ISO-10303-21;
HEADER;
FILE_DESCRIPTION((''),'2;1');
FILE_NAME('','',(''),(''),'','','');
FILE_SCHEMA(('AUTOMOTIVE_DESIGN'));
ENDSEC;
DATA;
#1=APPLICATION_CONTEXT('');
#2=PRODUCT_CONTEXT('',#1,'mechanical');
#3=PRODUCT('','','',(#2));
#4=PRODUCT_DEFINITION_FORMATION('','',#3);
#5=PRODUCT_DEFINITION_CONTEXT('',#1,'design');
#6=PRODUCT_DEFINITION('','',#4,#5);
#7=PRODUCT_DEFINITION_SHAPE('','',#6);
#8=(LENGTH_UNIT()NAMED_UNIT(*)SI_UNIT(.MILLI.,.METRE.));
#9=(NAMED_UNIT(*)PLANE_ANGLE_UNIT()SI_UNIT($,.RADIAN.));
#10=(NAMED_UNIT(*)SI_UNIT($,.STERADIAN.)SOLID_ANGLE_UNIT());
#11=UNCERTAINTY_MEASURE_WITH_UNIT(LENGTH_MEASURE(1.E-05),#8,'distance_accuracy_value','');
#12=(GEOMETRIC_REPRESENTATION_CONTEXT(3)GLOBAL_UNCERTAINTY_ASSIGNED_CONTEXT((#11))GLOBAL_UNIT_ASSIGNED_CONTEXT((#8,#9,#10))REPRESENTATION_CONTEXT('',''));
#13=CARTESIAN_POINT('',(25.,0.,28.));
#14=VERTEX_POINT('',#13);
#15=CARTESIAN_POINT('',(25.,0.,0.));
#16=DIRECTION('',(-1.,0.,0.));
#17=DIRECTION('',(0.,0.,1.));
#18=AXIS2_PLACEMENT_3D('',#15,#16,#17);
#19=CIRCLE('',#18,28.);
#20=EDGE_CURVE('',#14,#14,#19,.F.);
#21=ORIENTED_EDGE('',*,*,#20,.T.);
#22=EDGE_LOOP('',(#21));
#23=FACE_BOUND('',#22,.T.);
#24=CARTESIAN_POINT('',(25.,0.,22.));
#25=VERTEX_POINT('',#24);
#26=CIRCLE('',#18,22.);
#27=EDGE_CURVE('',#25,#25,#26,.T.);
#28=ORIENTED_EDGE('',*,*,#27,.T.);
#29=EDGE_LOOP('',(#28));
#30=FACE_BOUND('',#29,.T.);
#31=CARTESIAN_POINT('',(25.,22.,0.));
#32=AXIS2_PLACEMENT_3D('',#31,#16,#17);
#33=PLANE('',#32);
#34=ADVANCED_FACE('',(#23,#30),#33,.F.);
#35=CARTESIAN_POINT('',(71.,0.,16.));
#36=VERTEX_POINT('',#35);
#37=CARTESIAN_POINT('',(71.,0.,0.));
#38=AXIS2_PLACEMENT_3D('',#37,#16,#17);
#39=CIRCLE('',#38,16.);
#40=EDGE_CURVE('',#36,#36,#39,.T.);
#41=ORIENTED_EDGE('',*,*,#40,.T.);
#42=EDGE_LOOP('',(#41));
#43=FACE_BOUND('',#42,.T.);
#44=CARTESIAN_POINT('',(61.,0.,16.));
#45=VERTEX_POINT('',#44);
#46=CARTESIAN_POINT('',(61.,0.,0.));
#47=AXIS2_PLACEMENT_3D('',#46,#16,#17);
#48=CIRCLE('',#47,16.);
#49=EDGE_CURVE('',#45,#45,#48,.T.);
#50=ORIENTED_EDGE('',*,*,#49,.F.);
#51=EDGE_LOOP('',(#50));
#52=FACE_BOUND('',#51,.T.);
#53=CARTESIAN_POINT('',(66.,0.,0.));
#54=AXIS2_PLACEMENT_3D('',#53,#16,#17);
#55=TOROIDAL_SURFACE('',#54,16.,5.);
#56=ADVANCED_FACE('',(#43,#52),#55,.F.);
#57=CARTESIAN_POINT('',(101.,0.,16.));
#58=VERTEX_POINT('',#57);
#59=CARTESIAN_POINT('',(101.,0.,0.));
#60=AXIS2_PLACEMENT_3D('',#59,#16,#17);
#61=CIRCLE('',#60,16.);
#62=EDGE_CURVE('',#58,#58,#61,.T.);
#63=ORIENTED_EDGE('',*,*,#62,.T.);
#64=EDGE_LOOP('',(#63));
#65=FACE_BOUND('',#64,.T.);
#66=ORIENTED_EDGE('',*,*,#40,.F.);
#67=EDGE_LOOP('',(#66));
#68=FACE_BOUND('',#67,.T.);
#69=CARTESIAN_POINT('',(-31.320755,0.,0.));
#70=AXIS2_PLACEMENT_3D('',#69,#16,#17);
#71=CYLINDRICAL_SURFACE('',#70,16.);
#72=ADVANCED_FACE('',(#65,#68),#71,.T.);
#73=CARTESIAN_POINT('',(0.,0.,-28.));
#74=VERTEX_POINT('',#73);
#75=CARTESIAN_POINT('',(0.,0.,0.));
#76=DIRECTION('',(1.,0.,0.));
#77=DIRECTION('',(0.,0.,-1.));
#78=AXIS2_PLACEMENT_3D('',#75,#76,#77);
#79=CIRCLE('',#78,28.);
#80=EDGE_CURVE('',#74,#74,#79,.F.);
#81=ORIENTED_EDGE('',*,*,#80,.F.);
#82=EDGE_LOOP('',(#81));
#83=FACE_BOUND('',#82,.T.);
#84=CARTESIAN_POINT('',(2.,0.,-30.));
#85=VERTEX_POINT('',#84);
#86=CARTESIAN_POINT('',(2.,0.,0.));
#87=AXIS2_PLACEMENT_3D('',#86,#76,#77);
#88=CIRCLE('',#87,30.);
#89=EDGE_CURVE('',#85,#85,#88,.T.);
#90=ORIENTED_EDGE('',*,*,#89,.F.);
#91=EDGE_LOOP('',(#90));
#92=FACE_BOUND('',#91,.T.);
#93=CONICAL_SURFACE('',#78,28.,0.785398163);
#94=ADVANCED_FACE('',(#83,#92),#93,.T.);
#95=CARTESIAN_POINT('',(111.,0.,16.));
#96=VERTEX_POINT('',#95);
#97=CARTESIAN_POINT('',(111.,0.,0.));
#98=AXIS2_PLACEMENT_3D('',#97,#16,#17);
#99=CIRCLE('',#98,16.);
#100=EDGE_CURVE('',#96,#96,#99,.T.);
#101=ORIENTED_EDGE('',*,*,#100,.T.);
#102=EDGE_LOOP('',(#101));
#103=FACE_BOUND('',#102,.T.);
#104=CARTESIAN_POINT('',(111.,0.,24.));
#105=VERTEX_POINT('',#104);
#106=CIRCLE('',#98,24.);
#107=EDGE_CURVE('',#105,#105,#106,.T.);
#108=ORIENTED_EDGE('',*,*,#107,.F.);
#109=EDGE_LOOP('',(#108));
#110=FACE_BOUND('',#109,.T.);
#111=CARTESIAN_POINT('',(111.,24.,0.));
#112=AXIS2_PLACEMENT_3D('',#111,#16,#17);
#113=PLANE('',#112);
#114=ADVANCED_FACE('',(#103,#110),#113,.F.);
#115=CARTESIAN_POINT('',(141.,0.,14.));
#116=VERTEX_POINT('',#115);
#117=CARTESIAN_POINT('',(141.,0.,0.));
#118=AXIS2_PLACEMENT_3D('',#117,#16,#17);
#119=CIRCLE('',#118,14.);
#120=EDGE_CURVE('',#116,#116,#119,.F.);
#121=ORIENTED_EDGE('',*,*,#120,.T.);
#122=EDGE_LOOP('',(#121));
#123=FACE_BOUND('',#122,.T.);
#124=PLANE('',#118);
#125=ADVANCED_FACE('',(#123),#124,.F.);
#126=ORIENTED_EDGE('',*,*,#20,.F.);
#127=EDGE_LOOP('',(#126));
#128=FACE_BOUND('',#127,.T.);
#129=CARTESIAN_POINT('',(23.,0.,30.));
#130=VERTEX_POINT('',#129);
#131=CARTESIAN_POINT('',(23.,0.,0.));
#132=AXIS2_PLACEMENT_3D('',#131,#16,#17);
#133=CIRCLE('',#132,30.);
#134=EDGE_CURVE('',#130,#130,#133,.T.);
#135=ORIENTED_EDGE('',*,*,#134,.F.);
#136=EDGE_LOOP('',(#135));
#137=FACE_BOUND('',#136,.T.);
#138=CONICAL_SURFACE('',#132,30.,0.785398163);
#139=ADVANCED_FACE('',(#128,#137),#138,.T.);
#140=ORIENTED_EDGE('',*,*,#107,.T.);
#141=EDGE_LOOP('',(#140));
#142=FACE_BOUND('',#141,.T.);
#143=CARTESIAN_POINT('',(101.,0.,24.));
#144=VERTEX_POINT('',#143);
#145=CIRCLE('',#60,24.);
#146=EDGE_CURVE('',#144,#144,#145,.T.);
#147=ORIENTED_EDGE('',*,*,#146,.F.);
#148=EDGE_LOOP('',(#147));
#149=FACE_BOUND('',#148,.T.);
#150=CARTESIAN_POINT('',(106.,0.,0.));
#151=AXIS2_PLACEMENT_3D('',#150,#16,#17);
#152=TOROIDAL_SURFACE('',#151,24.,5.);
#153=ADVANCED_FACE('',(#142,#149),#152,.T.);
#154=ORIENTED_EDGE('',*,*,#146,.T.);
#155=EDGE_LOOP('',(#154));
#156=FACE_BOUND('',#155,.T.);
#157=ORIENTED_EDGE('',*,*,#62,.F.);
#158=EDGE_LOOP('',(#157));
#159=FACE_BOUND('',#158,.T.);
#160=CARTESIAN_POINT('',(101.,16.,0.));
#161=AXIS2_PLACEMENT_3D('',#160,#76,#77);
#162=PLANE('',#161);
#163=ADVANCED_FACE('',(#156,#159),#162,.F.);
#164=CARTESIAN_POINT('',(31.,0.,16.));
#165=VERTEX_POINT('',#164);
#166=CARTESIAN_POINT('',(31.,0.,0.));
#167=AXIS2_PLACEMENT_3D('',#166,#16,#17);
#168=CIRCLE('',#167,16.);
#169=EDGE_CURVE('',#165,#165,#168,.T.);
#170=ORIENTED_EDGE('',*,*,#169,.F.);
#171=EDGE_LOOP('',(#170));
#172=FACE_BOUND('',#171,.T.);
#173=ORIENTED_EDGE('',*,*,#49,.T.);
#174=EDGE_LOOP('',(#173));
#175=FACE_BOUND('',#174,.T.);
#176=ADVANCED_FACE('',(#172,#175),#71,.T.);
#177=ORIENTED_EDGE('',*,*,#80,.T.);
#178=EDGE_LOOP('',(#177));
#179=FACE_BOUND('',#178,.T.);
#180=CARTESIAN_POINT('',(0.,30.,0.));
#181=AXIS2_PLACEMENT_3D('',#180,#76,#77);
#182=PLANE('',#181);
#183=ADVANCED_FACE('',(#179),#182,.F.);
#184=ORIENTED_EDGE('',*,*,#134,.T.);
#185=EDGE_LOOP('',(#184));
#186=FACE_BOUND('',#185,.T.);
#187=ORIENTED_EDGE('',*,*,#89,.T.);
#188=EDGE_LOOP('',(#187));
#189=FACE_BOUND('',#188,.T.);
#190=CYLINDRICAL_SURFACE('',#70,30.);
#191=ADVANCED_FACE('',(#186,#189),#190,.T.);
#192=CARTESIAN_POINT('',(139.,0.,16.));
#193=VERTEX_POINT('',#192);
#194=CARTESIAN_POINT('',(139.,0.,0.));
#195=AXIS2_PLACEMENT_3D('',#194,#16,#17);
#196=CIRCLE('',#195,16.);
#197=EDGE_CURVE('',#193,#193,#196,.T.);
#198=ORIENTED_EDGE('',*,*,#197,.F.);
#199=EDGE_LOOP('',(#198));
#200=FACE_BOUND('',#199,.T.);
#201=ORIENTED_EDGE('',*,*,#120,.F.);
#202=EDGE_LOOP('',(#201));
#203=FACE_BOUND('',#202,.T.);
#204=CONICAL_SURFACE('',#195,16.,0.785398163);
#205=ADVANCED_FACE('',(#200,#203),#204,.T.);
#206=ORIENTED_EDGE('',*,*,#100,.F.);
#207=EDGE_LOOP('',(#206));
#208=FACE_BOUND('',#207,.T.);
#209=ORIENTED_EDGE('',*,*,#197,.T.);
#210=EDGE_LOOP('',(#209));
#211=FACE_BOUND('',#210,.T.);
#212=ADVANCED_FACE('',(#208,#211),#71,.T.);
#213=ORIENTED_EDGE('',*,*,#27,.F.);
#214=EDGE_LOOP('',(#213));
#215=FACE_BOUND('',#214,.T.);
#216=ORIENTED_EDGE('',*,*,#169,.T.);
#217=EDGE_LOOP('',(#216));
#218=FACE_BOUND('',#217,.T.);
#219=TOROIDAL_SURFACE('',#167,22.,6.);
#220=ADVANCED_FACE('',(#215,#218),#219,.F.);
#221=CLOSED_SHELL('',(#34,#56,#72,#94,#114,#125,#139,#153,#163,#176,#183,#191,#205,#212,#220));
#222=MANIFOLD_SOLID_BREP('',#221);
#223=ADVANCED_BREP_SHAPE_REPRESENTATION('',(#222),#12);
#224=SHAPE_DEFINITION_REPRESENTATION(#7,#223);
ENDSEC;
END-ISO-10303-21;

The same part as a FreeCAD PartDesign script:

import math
import FreeCAD as App
import Part
import Sketcher

V = App.Vector


def edges_at(feature, points):
    """Names of the edges that pass closest to the given points."""
    edges = feature.Shape.Edges
    near = lambda p: min(range(len(edges)), key=lambda i: edges[i].distToShape(Part.Vertex(*p))[0])
    return sorted({f"Edge{near(p) + 1}" for p in points})

doc = App.newDocument("Part")
params = doc.addObject("Spreadsheet::Sheet", "Params")
for row, (alias, value) in enumerate([
    ("sketch1_radius", "5 mm"),
    ("sketch1_radius2", "6 mm"),
    ("sketch1_width", "141 mm"),
    ("sketch1_width2", "30 mm"),
    ("sketch1_height", "16 mm"),
    ("revolution_angle", "360 deg"),
    ("chamfer_size", "2 mm"),
], start=1):
    params.set(f"A{row}", alias)
    params.set(f"B{row}", "=" + value)
    params.setAlias(f"B{row}", alias)

body = doc.addObject("PartDesign::Body", "Body")

sketch1 = body.newObject("Sketcher::SketchObject", "Sketch")
sketch1.AttachmentSupport = (doc.getObject("XY_Plane"), [""])
sketch1.MapMode = "FlatFace"
sketch1.addGeometry(Part.LineSegment(V(0, 0, 0), V(141, 0, 0)), False)
sketch1.addGeometry(Part.LineSegment(V(141, 0, 0), V(141, 16, 0)), False)
sketch1.addGeometry(Part.LineSegment(V(141, 16, 0), V(111, 16, 0)), False)
sketch1.addGeometry(Part.LineSegment(V(111, 16, 0), V(111, 24, 0)), False)
sketch1.addGeometry(Part.ArcOfCircle(Part.Circle(V(106, 24, 0), V(0, 0, 1), 5), math.radians(0), math.radians(180)), False)
sketch1.addGeometry(Part.LineSegment(V(101, 24, 0), V(101, 16, 0)), False)
sketch1.addGeometry(Part.LineSegment(V(101, 16, 0), V(71, 16, 0)), False)
sketch1.addGeometry(Part.ArcOfCircle(Part.Circle(V(66, 16, 0), V(0, 0, 1), 5), math.radians(180), math.radians(360)), False)
sketch1.addGeometry(Part.LineSegment(V(61, 16, 0), V(31, 16, 0)), False)
sketch1.addGeometry(Part.ArcOfCircle(Part.Circle(V(31, 22, 0), V(0, 0, 1), 6), math.radians(180), math.radians(270)), False)
sketch1.addGeometry(Part.LineSegment(V(25, 22, 0), V(25, 30, 0)), False)
sketch1.addGeometry(Part.LineSegment(V(25, 30, 0), V(0, 30, 0)), False)
sketch1.addGeometry(Part.LineSegment(V(0, 30, 0), V(0, 0, 0)), False)
sketch1.addConstraint(Sketcher.Constraint("Coincident", 0, 2, 1, 1))
sketch1.addConstraint(Sketcher.Constraint("Coincident", 1, 2, 2, 1))
sketch1.addConstraint(Sketcher.Constraint("Coincident", 2, 2, 3, 1))
sketch1.addConstraint(Sketcher.Constraint("Tangent", 3, 2, 4, 1))
sketch1.addConstraint(Sketcher.Constraint("Tangent", 4, 2, 5, 1))
sketch1.addConstraint(Sketcher.Constraint("Coincident", 5, 2, 6, 1))
sketch1.addConstraint(Sketcher.Constraint("Coincident", 6, 2, 7, 2))
sketch1.addConstraint(Sketcher.Constraint("Coincident", 7, 1, 8, 1))
sketch1.addConstraint(Sketcher.Constraint("Tangent", 8, 2, 9, 2))
sketch1.addConstraint(Sketcher.Constraint("Tangent", 9, 1, 10, 1))
sketch1.addConstraint(Sketcher.Constraint("Coincident", 10, 2, 11, 1))
sketch1.addConstraint(Sketcher.Constraint("Coincident", 11, 2, 12, 1))
sketch1.addConstraint(Sketcher.Constraint("Coincident", 12, 2, 0, 1))
sketch1.addConstraint(Sketcher.Constraint("Horizontal", 0))
sketch1.addConstraint(Sketcher.Constraint("Vertical", 1))
sketch1.addConstraint(Sketcher.Constraint("Horizontal", 2))
sketch1.addConstraint(Sketcher.Constraint("Vertical", 3))
sketch1.addConstraint(Sketcher.Constraint("Vertical", 5))
sketch1.addConstraint(Sketcher.Constraint("Horizontal", 6))
sketch1.addConstraint(Sketcher.Constraint("Horizontal", 8))
sketch1.addConstraint(Sketcher.Constraint("Vertical", 10))
sketch1.addConstraint(Sketcher.Constraint("Horizontal", 11))
sketch1.addConstraint(Sketcher.Constraint("Vertical", 12))
sketch1.addConstraint(Sketcher.Constraint("Coincident", 12, 2, -1, 1))
sketch1.addConstraint(Sketcher.Constraint("Equal", 4, 7))
sketch1.addConstraint(Sketcher.Constraint("Horizontal", 7, 3, 1, 2))
sketch1.addConstraint(Sketcher.Constraint("Horizontal", 2, 2, 5, 2))
sketch1.addConstraint(Sketcher.Constraint("Horizontal", 6, 2, 7, 1))
sketch1.addConstraint(Sketcher.Constraint("Equal", 2, 6))
sketch1.addConstraint(Sketcher.Constraint("Equal", 6, 8))
sketch1.addConstraint(Sketcher.Constraint("Equal", 5, 10))
sketch1.addConstraint(Sketcher.Constraint("Equal", 8, 12))
sketch1.addConstraint(Sketcher.Constraint("Radius", 4, 5.0))
sketch1.addConstraint(Sketcher.Constraint("Radius", 9, 6.0))
sketch1.addConstraint(Sketcher.Constraint("DistanceX", 0, 1, 0, 2, 141.0))
sketch1.addConstraint(Sketcher.Constraint("DistanceX", 2, 2, 2, 1, 30.0))
sketch1.addConstraint(Sketcher.Constraint("DistanceY", 1, 1, 1, 2, 16.0))
sketch1.setExpression("Constraints[32]", "Params.sketch1_radius")
sketch1.setExpression("Constraints[33]", "Params.sketch1_radius2")
sketch1.setExpression("Constraints[34]", "Params.sketch1_width")
sketch1.setExpression("Constraints[35]", "Params.sketch1_width2")
sketch1.setExpression("Constraints[36]", "Params.sketch1_height")
revolution = body.newObject("PartDesign::Revolution", "Revolution")
revolution.Profile = sketch1
revolution.ReferenceAxis = (sketch1, ["H_Axis"])
revolution.setExpression("Angle", "Params.revolution_angle")
doc.recompute()

chamfer = body.newObject("PartDesign::Chamfer", "Chamfer")
chamfer.Base = (revolution, edges_at(revolution, [(141, 0, -16), (25, 0, -30), (0, 0, -30)]))
chamfer.setExpression("Size", "Params.chamfer_size")

doc.recompute()
